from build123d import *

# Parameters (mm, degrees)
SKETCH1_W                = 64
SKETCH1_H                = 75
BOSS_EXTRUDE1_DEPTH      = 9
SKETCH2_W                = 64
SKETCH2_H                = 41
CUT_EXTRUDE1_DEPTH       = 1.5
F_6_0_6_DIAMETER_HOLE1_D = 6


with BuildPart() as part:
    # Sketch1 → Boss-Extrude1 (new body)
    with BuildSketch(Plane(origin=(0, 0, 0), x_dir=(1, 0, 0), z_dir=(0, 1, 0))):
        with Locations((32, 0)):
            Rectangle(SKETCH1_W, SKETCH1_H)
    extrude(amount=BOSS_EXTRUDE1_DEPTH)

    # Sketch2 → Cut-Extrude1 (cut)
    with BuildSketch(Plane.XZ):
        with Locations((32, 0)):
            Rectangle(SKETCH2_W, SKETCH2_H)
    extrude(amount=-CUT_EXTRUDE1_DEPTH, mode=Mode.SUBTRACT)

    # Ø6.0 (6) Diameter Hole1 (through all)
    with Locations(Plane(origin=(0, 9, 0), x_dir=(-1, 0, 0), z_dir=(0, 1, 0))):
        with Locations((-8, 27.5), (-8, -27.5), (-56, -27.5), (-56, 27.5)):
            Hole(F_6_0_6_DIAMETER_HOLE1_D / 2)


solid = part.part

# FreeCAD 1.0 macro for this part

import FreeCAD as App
import Part
import Sketcher

V = App.Vector
Q = App.Units.Quantity


def add_polygon(sketch, points):
    """Adds a closed chain of lines whose ends are joined by coincident constraints."""
    first, n = sketch.GeometryCount, len(points)
    for a, b in zip(points, points[1:] + points[:1]):
        sketch.addGeometry(Part.LineSegment(App.Vector(*a, 0), App.Vector(*b, 0)), False)
    for i in range(n):
        sketch.addConstraint(Sketcher.Constraint("Coincident", first + i, 2, first + (i + 1) % n, 1))

doc = App.newDocument("Part")
body = doc.addObject("PartDesign::Body", "Body")

# Sketch on XZ plane
sketch1 = body.newObject("Sketcher::SketchObject", "Sketch")
sketch1.AttachmentSupport = (doc.getObject("XZ_Plane"), [""])
sketch1.MapMode = "FlatFace"
add_polygon(sketch1, [(0, -38), (0, 38), (64, 38), (64, -38)])  # lines 0-3
sketch1.addConstraint(Sketcher.Constraint("Vertical", 0))
sketch1.addConstraint(Sketcher.Constraint("Horizontal", 1))
sketch1.addConstraint(Sketcher.Constraint("Vertical", 2))
sketch1.addConstraint(Sketcher.Constraint("Horizontal", 3))
sketch1.addConstraint(Sketcher.Constraint("Symmetric", 0, 2, 3, 2, -1, 1))
sketch1.addConstraint(Sketcher.Constraint("DistanceX", 1, 1, 1, 2, Q("64 mm")))
sketch1.addConstraint(Sketcher.Constraint("DistanceY", 0, 1, 0, 2, Q("75 mm")))
pad1 = body.newObject("PartDesign::Pad", "Pad")
pad1.Profile = sketch1
pad1.Length = 9
pad1.Reversed = True

# Sketch on XZ plane
sketch2 = body.newObject("Sketcher::SketchObject", "Sketch001")
sketch2.AttachmentSupport = (doc.getObject("XZ_Plane"), [""])
sketch2.MapMode = "FlatFace"
add_polygon(sketch2, [(0, 20), (0, -20), (64, -20), (64, 20)])  # lines 0-3
sketch2.addConstraint(Sketcher.Constraint("Vertical", 0))
sketch2.addConstraint(Sketcher.Constraint("Horizontal", 1))
sketch2.addConstraint(Sketcher.Constraint("Vertical", 2))
sketch2.addConstraint(Sketcher.Constraint("Horizontal", 3))
sketch2.addConstraint(Sketcher.Constraint("Symmetric", 0, 2, 3, 2, -1, 1))
sketch2.addConstraint(Sketcher.Constraint("DistanceX", 1, 1, 1, 2, Q("64 mm")))
sketch2.addConstraint(Sketcher.Constraint("DistanceY", 0, 2, 0, 1, Q("41 mm")))
pocket1 = body.newObject("PartDesign::Pocket", "Pocket")
pocket1.Profile = sketch2
pocket1.Length = 1.5

# Sketch on XZ plane
sketch3 = body.newObject("Sketcher::SketchObject", "Sketch002")
sketch3.AttachmentSupport = (doc.getObject("XZ_Plane"), [""])
sketch3.MapMode = "FlatFace"
sketch3.AttachmentOffset = App.Placement(V(0, 0, -9), App.Rotation())
sketch3.addGeometry(Part.Circle(V(8, 27.5, 0), V(0, 0, 1), 3), False)
sketch3.addGeometry(Part.Circle(V(8, -27.5, 0), V(0, 0, 1), 3), False)
sketch3.addGeometry(Part.Circle(V(56, -27.5, 0), V(0, 0, 1), 3), False)
sketch3.addGeometry(Part.Circle(V(56, 27.5, 0), V(0, 0, 1), 3), False)
sketch3.addConstraint(Sketcher.Constraint("Equal", 0, 1))
sketch3.addConstraint(Sketcher.Constraint("Equal", 1, 2))
sketch3.addConstraint(Sketcher.Constraint("Equal", 2, 3))
sketch3.addConstraint(Sketcher.Constraint("Symmetric", 0, 3, 1, 3, -1))
sketch3.addConstraint(Sketcher.Constraint("Symmetric", 2, 3, 3, 3, -1))
sketch3.addConstraint(Sketcher.Constraint("Horizontal", 1, 3, 2, 3))
sketch3.addConstraint(Sketcher.Constraint("Diameter", 0, Q("6 mm")))
sketch3.addConstraint(Sketcher.Constraint("DistanceX", -1, 1, 0, 3, Q("8 mm")))
sketch3.addConstraint(Sketcher.Constraint("DistanceX", -1, 1, 2, 3, Q("56 mm")))
sketch3.addConstraint(Sketcher.Constraint("DistanceY", 1, 3, 0, 3, Q("55 mm")))
doc.recompute()
hole = body.newObject("PartDesign::Hole", "Hole")
hole.Profile = sketch3
hole.ThreadType = "None"
hole.Diameter = 6
hole.DepthType = "ThroughAll"
hole.Reversed = True

doc.recompute()
